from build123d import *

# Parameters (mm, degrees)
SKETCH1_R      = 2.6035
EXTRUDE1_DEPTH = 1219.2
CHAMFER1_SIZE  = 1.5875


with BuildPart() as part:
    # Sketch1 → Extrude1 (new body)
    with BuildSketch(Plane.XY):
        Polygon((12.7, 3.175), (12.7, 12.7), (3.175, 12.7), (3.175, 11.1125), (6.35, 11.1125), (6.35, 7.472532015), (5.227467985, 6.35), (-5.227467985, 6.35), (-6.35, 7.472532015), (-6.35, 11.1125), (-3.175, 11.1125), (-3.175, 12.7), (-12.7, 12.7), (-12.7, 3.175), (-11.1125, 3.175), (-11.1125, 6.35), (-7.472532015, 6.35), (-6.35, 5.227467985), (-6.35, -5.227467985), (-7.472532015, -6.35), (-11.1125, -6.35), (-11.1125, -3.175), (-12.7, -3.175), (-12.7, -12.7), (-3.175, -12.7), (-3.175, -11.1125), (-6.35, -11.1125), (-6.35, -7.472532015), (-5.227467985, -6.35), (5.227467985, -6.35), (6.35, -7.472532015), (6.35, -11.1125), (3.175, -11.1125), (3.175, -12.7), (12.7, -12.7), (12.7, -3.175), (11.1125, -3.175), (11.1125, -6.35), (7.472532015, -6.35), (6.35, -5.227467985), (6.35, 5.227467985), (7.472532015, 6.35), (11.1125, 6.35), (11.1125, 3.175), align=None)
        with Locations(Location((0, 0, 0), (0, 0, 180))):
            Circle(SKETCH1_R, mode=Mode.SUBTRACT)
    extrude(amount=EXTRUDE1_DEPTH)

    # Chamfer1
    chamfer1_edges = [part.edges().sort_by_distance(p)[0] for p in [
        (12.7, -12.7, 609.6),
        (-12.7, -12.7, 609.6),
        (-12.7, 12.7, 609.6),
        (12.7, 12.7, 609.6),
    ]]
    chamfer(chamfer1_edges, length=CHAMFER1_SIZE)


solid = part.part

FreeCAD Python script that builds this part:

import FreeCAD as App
import Part
import Sketcher
from FreeCAD import Vector
Q = App.Units.Quantity


def edges_at(feature, points):
    """Names of the edges that pass closest to the given points."""
    edges = feature.Shape.Edges
    near = lambda p: min(range(len(edges)), key=lambda i: edges[i].distToShape(Part.Vertex(*p))[0])
    return sorted({f"Edge{near(p) + 1}" for p in points})


def add_polygon(sketch, points):
    """Adds a closed chain of lines whose ends are joined by coincident constraints."""
    first, n = sketch.GeometryCount, len(points)
    for a, b in zip(points, points[1:] + points[:1]):
        sketch.addGeometry(Part.LineSegment(App.Vector(*a, 0), App.Vector(*b, 0)), False)
    for i in range(n):
        sketch.addConstraint(Sketcher.Constraint("Coincident", first + i, 2, first + (i + 1) % n, 1))

doc = App.newDocument("Part")
body = doc.addObject("PartDesign::Body", "Body")

sketch1 = body.newObject("Sketcher::SketchObject", "Sketch")
sketch1.AttachmentSupport = (doc.getObject("XY_Plane"), [""])
sketch1.MapMode = "FlatFace"
add_polygon(sketch1, [(12.7, 3.175), (12.7, 12.7), (3.175, 12.7), (3.175, 11.1125), (6.35, 11.1125), (6.35, 7.472532), (5.227468, 6.35), (-5.227468, 6.35), (-6.35, 7.472532), (-6.35, 11.1125), (-3.175, 11.1125), (-3.175, 12.7), (-12.7, 12.7), (-12.7, 3.175), (-11.1125, 3.175), (-11.1125, 6.35), (-7.472532, 6.35), (-6.35, 5.227468), (-6.35, -5.227468), (-7.472532, -6.35), (-11.1125, -6.35), (-11.1125, -3.175), (-12.7, -3.175), (-12.7, -12.7), (-3.175, -12.7), (-3.175, -11.1125), (-6.35, -11.1125), (-6.35, -7.472532), (-5.227468, -6.35), (5.227468, -6.35), (6.35, -7.472532), (6.35, -11.1125), (3.175, -11.1125), (3.175, -12.7), (12.7, -12.7), (12.7, -3.175), (11.1125, -3.175), (11.1125, -6.35), (7.472532, -6.35), (6.35, -5.227468), (6.35, 5.227468), (7.472532, 6.35), (11.1125, 6.35), (11.1125, 3.175)])
sketch1.addGeometry(Part.Circle(Vector(0, 0, 0), Vector(0, 0, 1), 2.6035), False)
sketch1.addConstraint([
    Sketcher.Constraint("Vertical", 0),
    Sketcher.Constraint("Horizontal", 1),
    Sketcher.Constraint("Vertical", 2),
    Sketcher.Constraint("Horizontal", 3),
    Sketcher.Constraint("Vertical", 4),
    Sketcher.Constraint("Horizontal", 6),
    Sketcher.Constraint("Vertical", 8),
    Sketcher.Constraint("Horizontal", 9),
    Sketcher.Constraint("Vertical", 10),
    Sketcher.Constraint("Horizontal", 11),
    Sketcher.Constraint("Vertical", 12),
    Sketcher.Constraint("Horizontal", 13),
    Sketcher.Constraint("Vertical", 14),
    Sketcher.Constraint("Horizontal", 15),
    Sketcher.Constraint("Vertical", 17),
    Sketcher.Constraint("Horizontal", 19),
    Sketcher.Constraint("Vertical", 20),
    Sketcher.Constraint("Horizontal", 21),
    Sketcher.Constraint("Vertical", 22),
    Sketcher.Constraint("Horizontal", 23),
    Sketcher.Constraint("Vertical", 24),
    Sketcher.Constraint("Horizontal", 25),
    Sketcher.Constraint("Vertical", 26),
    Sketcher.Constraint("Horizontal", 28),
    Sketcher.Constraint("Vertical", 30),
    Sketcher.Constraint("Horizontal", 31),
    Sketcher.Constraint("Vertical", 32),
    Sketcher.Constraint("Horizontal", 33),
    Sketcher.Constraint("Vertical", 34),
    Sketcher.Constraint("Horizontal", 35),
    Sketcher.Constraint("Vertical", 36),
    Sketcher.Constraint("Horizontal", 37),
    Sketcher.Constraint("Vertical", 39),
    Sketcher.Constraint("Horizontal", 41),
    Sketcher.Constraint("Vertical", 42),
    Sketcher.Constraint("Horizontal", 43),
    Sketcher.Constraint("Coincident", 44, 3, -1, 1),
    Sketcher.Constraint("Symmetric", 0, 2, 22, 2, -1, 1),
    Sketcher.Constraint("Symmetric", 2, 2, 24, 2, -1, 1),
    Sketcher.Constraint("Symmetric", 4, 2, 26, 2, -1, 1),
    Sketcher.Constraint("Symmetric", 5, 2, 27, 2, -1, 1),
    Sketcher.Constraint("Symmetric", 7, 2, 29, 2, -1, 1),
    Sketcher.Constraint("Symmetric", 9, 2, 31, 2, -1, 1),
    Sketcher.Constraint("Symmetric", 11, 2, 33, 2, -1, 1),
    Sketcher.Constraint("Symmetric", 13, 2, 35, 2, -1, 1),
    Sketcher.Constraint("Symmetric", 15, 2, 37, 2, -1, 1),
    Sketcher.Constraint("Symmetric", 16, 2, 38, 2, -1, 1),
    Sketcher.Constraint("Symmetric", 18, 2, 40, 2, -1, 1),
    Sketcher.Constraint("Symmetric", 20, 2, 42, 2, -1, 1),
    Sketcher.Constraint("Symmetric", 4, 2, 7, 2, -2),
    Sketcher.Constraint("Symmetric", 2, 2, 9, 2, -2),
    Sketcher.Constraint("Symmetric", 0, 2, 11, 2, -2),
    Sketcher.Constraint("Symmetric", 20, 2, 35, 2, -2),
    Sketcher.Constraint("Symmetric", 18, 2, 37, 2, -2),
    Sketcher.Constraint("Perpendicular", 5, 7),
    Sketcher.Constraint("Parallel", 7, 16),
    Sketcher.Constraint("Perpendicular", 16, 18),
    Sketcher.Constraint("Perpendicular", 27, 29),
    Sketcher.Constraint("Perpendicular", 38, 40),
    Sketcher.Constraint("Horizontal", 6, 2, 14, 2),
    Sketcher.Constraint("Horizontal", 17, 2, 38, 2),
    Sketcher.Constraint("Vertical", 8, 2, 16, 2),
    Sketcher.Constraint("Equal", 33, 0),
    Sketcher.Constraint("Equal", 43, 2),
    Sketcher.Constraint("Equal", 41, 4),
    Sketcher.Constraint("Equal", 31, 14),
    Sketcher.Constraint("Equal", 28, 17),
    Sketcher.Constraint("Diameter", 44, Q("0.205 in")),
    Sketcher.Constraint("DistanceX", -1, 1, 0, 2, Q("0.5 in")),
    Sketcher.Constraint("DistanceX", 1, 2, 1, 1, Q("0.375 in")),
    Sketcher.Constraint("DistanceX", 3, 1, 3, 2, Q("0.125 in")),
    Sketcher.Constraint("DistanceX", 13, 1, 13, 2, Q("0.0625 in")),
    Sketcher.Constraint("Distance", 5, Q("0.0625 in")),
])
pad1 = body.newObject("PartDesign::Pad", "Pad")
pad1.Profile = sketch1
pad1.Length = Q("48 in")
doc.recompute()

chamfer = body.newObject("PartDesign::Chamfer", "Chamfer")
chamfer.Base = (pad1, edges_at(pad1, [
    (12.7, -12.7, 609.6),
    (-12.7, -12.7, 609.6),
    (-12.7, 12.7, 609.6),
    (12.7, 12.7, 609.6),
]))
chamfer.Size = Q("0.0625 in")

doc.recompute()
